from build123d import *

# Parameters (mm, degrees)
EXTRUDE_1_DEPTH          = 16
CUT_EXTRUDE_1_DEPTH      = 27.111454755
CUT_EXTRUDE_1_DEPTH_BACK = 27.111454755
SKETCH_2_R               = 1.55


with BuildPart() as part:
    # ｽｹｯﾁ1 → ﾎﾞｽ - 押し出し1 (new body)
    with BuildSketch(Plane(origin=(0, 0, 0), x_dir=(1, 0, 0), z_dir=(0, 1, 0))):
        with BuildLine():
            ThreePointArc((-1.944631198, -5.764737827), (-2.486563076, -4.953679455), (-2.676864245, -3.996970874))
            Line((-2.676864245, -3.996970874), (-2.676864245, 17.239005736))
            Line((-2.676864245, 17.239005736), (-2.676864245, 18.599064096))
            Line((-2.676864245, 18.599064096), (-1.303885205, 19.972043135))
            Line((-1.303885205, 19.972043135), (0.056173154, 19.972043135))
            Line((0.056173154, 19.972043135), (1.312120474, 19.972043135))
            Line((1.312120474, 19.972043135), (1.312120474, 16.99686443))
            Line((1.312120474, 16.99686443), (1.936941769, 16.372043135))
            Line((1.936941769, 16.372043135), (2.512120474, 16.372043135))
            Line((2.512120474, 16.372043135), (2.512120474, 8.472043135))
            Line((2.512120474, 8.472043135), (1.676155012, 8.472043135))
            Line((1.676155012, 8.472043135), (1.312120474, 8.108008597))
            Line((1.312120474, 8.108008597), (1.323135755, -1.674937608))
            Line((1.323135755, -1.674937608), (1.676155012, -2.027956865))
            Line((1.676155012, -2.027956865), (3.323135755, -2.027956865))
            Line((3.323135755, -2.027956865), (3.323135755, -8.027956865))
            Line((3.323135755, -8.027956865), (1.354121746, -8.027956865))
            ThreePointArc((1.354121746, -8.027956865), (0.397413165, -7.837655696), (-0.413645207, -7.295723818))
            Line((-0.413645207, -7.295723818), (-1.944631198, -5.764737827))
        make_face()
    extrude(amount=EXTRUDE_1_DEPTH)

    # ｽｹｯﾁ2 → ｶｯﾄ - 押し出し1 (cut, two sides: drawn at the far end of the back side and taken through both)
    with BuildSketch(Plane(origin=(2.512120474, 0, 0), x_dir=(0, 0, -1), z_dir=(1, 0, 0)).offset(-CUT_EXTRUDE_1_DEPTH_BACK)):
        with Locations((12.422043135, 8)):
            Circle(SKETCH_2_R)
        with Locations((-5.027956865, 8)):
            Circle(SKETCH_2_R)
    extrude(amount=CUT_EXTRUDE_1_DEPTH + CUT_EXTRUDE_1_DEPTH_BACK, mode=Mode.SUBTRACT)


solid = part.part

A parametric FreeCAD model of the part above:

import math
import FreeCAD as App
import Part
import Sketcher
Q = App.Units.Quantity

doc = App.newDocument("Part")
body = doc.addObject("PartDesign::Body", "Body")

# Sketch on XZ plane
sketch1 = body.newObject("Sketcher::SketchObject", "Sketch")
sketch1.AttachmentSupport = (doc.getObject("XZ_Plane"), [""])
sketch1.MapMode = "FlatFace"
sketch1.addGeometry(Part.ArcOfCircle(Part.Circle(App.Vector(-0.18, 4, 0), App.Vector(0, 0, 1), 2.5), math.radians(135), math.radians(180)), False)
sketch1.addGeometry(Part.LineSegment(App.Vector(-1.94, 5.76, 0), App.Vector(-0.41, 7.3, 0)), False)
sketch1.addGeometry(Part.ArcOfCircle(Part.Circle(App.Vector(1.35, 5.53, 0), App.Vector(0, 0, 1), 2.5), math.radians(90), math.radians(135)), False)
sketch1.addGeometry(Part.LineSegment(App.Vector(1.35, 8.03, 0), App.Vector(3.32, 8.03, 0)), False)
sketch1.addGeometry(Part.LineSegment(App.Vector(3.32, 8.03, 0), App.Vector(3.32, 2.03, 0)), False)
sketch1.addGeometry(Part.LineSegment(App.Vector(3.32, 2.03, 0), App.Vector(1.68, 2.03, 0)), False)
sketch1.addGeometry(Part.LineSegment(App.Vector(1.68, 2.03, 0), App.Vector(1.32, 1.67, 0)), False)
sketch1.addGeometry(Part.LineSegment(App.Vector(1.32, 1.67, 0), App.Vector(1.31, -8.11, 0)), False)
sketch1.addGeometry(Part.LineSegment(App.Vector(1.31, -8.11, 0), App.Vector(1.68, -8.47, 0)), False)
sketch1.addGeometry(Part.LineSegment(App.Vector(1.68, -8.47, 0), App.Vector(2.51, -8.47, 0)), False)
sketch1.addGeometry(Part.LineSegment(App.Vector(2.51, -8.47, 0), App.Vector(2.51, -16.37, 0)), False)
sketch1.addGeometry(Part.LineSegment(App.Vector(2.51, -16.37, 0), App.Vector(1.94, -16.37, 0)), False)
sketch1.addGeometry(Part.LineSegment(App.Vector(1.94, -16.37, 0), App.Vector(1.31, -17, 0)), False)
sketch1.addGeometry(Part.LineSegment(App.Vector(1.31, -17, 0), App.Vector(1.31, -19.97, 0)), False)
sketch1.addGeometry(Part.LineSegment(App.Vector(1.31, -19.97, 0), App.Vector(-1.3, -19.97, 0)), False)
sketch1.addGeometry(Part.LineSegment(App.Vector(-1.3, -19.97, 0), App.Vector(-2.68, -18.6, 0)), False)
sketch1.addGeometry(Part.LineSegment(App.Vector(-2.68, -18.6, 0), App.Vector(-2.68, 4, 0)), False)
sketch1.addConstraint(Sketcher.Constraint("Tangent", 0, 1, 1, 1))
sketch1.addConstraint(Sketcher.Constraint("Tangent", 1, 2, 2, 2))
sketch1.addConstraint(Sketcher.Constraint("Tangent", 2, 1, 3, 1))
sketch1.addConstraint(Sketcher.Constraint("Coincident", 3, 2, 4, 1))
sketch1.addConstraint(Sketcher.Constraint("Coincident", 4, 2, 5, 1))
sketch1.addConstraint(Sketcher.Constraint("Coincident", 5, 2, 6, 1))
sketch1.addConstraint(Sketcher.Constraint("Coincident", 6, 2, 7, 1))
sketch1.addConstraint(Sketcher.Constraint("Coincident", 7, 2, 8, 1))
sketch1.addConstraint(Sketcher.Constraint("Coincident", 8, 2, 9, 1))
sketch1.addConstraint(Sketcher.Constraint("Coincident", 9, 2, 10, 1))
sketch1.addConstraint(Sketcher.Constraint("Coincident", 10, 2, 11, 1))
sketch1.addConstraint(Sketcher.Constraint("Coincident", 11, 2, 12, 1))
sketch1.addConstraint(Sketcher.Constraint("Coincident", 12, 2, 13, 1))
sketch1.addConstraint(Sketcher.Constraint("Coincident", 13, 2, 14, 1))
sketch1.addConstraint(Sketcher.Constraint("Coincident", 14, 2, 15, 1))
sketch1.addConstraint(Sketcher.Constraint("Coincident", 15, 2, 16, 1))
sketch1.addConstraint(Sketcher.Constraint("Tangent", 16, 2, 0, 2))
sketch1.addConstraint(Sketcher.Constraint("Horizontal", 3))
sketch1.addConstraint(Sketcher.Constraint("Vertical", 4))
sketch1.addConstraint(Sketcher.Constraint("Horizontal", 5))
sketch1.addConstraint(Sketcher.Constraint("Horizontal", 9))
sketch1.addConstraint(Sketcher.Constraint("Vertical", 10))
sketch1.addConstraint(Sketcher.Constraint("Horizontal", 11))
sketch1.addConstraint(Sketcher.Constraint("Vertical", 13))
sketch1.addConstraint(Sketcher.Constraint("Horizontal", 14))
sketch1.addConstraint(Sketcher.Constraint("Vertical", 16))
sketch1.addConstraint(Sketcher.Constraint("Equal", 0, 2))
sketch1.addConstraint(Sketcher.Constraint("Parallel", 1, 6))
sketch1.addConstraint(Sketcher.Constraint("Perpendicular", 6, 8))
sketch1.addConstraint(Sketcher.Constraint("Perpendicular", 8, 12))
sketch1.addConstraint(Sketcher.Constraint("Perpendicular", 12, 15))
sketch1.addConstraint(Sketcher.Constraint("Vertical", 5, 2, 8, 2))
sketch1.addConstraint(Sketcher.Constraint("Vertical", 7, 2, 12, 2))
sketch1.addConstraint(Sketcher.Constraint("Radius", 0, Q("2.5 mm")))
sketch1.addConstraint(Sketcher.Constraint("DistanceY", 4, 2, 4, 1, Q("6 mm")))
sketch1.addConstraint(Sketcher.Constraint("Angle", 1, Q("45 deg")))
sketch1.addConstraint(Sketcher.Constraint("DistanceY", 10, 2, 10, 1, Q("7.9 mm")))
sketch1.addConstraint(Sketcher.Constraint("DistanceX", 6, 2, 4, 2, Q("2 mm")))
sketch1.addConstraint(Sketcher.Constraint("DistanceX", 16, 2, 6, 2, Q("4 mm")))
sketch1.addConstraint(Sketcher.Constraint("DistanceY", 8, 2, 5, 2, Q("10.5 mm")))
sketch1.addConstraint(Sketcher.Constraint("DistanceX", 7, 2, 9, 2, Q("1.2 mm")))
sketch1.addConstraint(Sketcher.Constraint("DistanceY", 13, 2, 11, 2, Q("3.6 mm")))
sketch1.addConstraint(Sketcher.Constraint("DistanceX", 7, 2, 2, 3, Q("0.042001 mm")))
sketch1.addConstraint(Sketcher.Constraint("DistanceX", 5, 2, 5, 1, Q("1.646981 mm")))
sketch1.addConstraint(Sketcher.Constraint("DistanceX", 11, 2, 11, 1, Q("0.575179 mm")))
sketch1.addConstraint(Sketcher.Constraint("DistanceX", 1, 2, 5, 2, Q("2.0898 mm")))
sketch1.addConstraint(Sketcher.Constraint("DistanceY", 15, 2, 12, 2, Q("1.6022 mm")))
sketch1.addConstraint(Sketcher.Constraint("DistanceY", -1, 1, 0, 3, Q("3.996971 mm")))
sketch1.addConstraint(Sketcher.Constraint("DistanceX", -1, 1, 2, 3, Q("1.354122 mm")))
pad1 = body.newObject("PartDesign::Pad", "Pad")
pad1.Profile = sketch1
pad1.Length = 16
pad1.Reversed = True

# Sketch on YZ plane
sketch2 = body.newObject("Sketcher::SketchObject", "Sketch001")
sketch2.AttachmentSupport = (doc.getObject("YZ_Plane"), [""])
sketch2.MapMode = "FlatFace"
sketch2.AttachmentOffset = App.Placement(App.Vector(0, 0, 2.51212), App.Rotation())
sketch2.addGeometry(Part.Circle(App.Vector(8, -12.4, 0), App.Vector(0, 0, 1), 1.6), False)
sketch2.addGeometry(Part.Circle(App.Vector(8, 5, 0), App.Vector(0, 0, 1), 1.6), False)
sketch2.addConstraint(Sketcher.Constraint("Equal", 0, 1))
sketch2.addConstraint(Sketcher.Constraint("Vertical", 0, 3, 1, 3))
sketch2.addConstraint(Sketcher.Constraint("Diameter", 0, Q("3.1 mm")))
sketch2.addConstraint(Sketcher.Constraint("DistanceX", -1, 1, 0, 3, Q("8 mm")))
sketch2.addConstraint(Sketcher.Constraint("DistanceY", 0, 3, 1, 3, Q("17.45 mm")))
sketch2.addConstraint(Sketcher.Constraint("DistanceY", 0, 3, -1, 1, Q("12.422043 mm")))
pocket1 = body.newObject("PartDesign::Pocket", "Pocket")
pocket1.Profile = sketch2
pocket1.Type = "ThroughAll"
pocket1.Midplane = True

doc.recompute()
